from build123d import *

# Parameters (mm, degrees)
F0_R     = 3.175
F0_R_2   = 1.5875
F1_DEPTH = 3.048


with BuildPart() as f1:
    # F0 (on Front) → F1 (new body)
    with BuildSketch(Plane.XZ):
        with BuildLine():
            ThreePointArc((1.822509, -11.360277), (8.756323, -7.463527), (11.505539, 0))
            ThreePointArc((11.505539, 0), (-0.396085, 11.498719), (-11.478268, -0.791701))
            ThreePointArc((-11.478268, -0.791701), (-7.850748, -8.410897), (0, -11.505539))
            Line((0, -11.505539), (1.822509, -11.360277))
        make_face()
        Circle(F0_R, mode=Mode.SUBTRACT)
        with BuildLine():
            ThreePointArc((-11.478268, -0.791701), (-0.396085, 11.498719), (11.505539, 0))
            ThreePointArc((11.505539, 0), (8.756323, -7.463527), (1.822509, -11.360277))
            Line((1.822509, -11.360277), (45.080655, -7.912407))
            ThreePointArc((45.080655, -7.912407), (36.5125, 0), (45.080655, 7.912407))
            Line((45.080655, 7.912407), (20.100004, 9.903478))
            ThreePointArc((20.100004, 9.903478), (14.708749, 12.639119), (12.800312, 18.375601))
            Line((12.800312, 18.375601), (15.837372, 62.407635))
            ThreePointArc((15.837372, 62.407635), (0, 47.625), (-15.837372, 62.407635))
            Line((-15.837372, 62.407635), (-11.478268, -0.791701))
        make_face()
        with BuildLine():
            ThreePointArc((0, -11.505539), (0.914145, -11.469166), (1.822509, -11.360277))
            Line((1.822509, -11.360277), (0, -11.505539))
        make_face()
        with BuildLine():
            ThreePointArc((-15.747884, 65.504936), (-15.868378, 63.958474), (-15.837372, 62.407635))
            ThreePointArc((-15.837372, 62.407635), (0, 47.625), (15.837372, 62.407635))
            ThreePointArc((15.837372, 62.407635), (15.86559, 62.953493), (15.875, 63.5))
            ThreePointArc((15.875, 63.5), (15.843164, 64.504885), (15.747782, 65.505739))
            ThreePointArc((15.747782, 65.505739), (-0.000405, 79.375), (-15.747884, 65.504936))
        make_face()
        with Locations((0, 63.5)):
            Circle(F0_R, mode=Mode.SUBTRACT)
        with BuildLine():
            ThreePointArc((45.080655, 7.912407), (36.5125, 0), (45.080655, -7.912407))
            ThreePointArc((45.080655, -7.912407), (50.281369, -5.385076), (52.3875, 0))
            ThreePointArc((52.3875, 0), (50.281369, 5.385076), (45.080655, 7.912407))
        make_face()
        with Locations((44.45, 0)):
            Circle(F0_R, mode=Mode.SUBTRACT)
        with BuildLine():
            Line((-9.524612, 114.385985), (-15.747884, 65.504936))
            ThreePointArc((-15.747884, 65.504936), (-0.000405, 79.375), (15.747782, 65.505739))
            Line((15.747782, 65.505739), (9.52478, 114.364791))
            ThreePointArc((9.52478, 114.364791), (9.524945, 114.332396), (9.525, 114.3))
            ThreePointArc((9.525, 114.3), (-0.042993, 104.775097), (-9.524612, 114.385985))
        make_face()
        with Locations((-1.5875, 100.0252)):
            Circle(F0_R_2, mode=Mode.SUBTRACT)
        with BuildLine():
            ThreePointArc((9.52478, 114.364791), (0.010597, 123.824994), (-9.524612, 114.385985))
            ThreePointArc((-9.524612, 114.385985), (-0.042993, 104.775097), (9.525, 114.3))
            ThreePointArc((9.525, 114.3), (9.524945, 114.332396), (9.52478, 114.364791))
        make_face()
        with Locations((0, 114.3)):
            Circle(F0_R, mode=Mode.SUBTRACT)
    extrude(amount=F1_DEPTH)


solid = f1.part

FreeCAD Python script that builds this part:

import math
import FreeCAD as App
import Part
import Sketcher
Q = App.Units.Quantity

doc = App.newDocument("Part")
body = doc.addObject("PartDesign::Body", "Body")

# Sketch on XZ plane
sketch1 = doc.addObject("Sketcher::SketchObject", "Sketch")
body.addObject(sketch1)
sketch1.AttachmentSupport = (doc.XZ_Plane, [""])
sketch1.MapMode = "FlatFace"
sketch1.addGeometry(Part.LineSegment(App.Vector(1.822509, -11.360277, 0), App.Vector(45.080655, -7.912407, 0)), False)
sketch1.addGeometry(Part.ArcOfCircle(Part.Circle(App.Vector(44.45, 0, 0), App.Vector(0, 0, 1), 7.9375), math.radians(-85.442897), math.radians(0.000001)), False)
sketch1.addGeometry(Part.ArcOfCircle(Part.Circle(App.Vector(44.45, 0, 0), App.Vector(0, 0, 1), 7.9375), math.radians(-0.000001), math.radians(85.442897)), False)
sketch1.addGeometry(Part.LineSegment(App.Vector(45.080655, 7.912407, 0), App.Vector(20.100004, 9.903478, 0)), False)
sketch1.addGeometry(Part.ArcOfCircle(Part.Circle(App.Vector(20.731666, 17.828543, 0), App.Vector(0, 0, 1), 7.950198), math.radians(176.054323), math.radians(265.442911)), False)
sketch1.addGeometry(Part.LineSegment(App.Vector(12.800312, 18.375601, 0), App.Vector(15.837372, 62.407635, 0)), False)
sketch1.addGeometry(Part.ArcOfCircle(Part.Circle(App.Vector(-0.000166, 63.500011, 0), App.Vector(0, 0, 1), 15.875166), math.radians(-3.945662), math.radians(-0.00004)), False)
sketch1.addGeometry(Part.ArcOfCircle(Part.Circle(App.Vector(0.000211, 63.500014, 0), App.Vector(0, 0, 1), 15.874789), math.radians(-0.00005), math.radians(7.258525)), False)
sketch1.addGeometry(Part.LineSegment(App.Vector(15.747782, 65.505739, 0), App.Vector(9.52478, 114.364791, 0)), False)
sketch1.addGeometry(Part.ArcOfCircle(Part.Circle(App.Vector(0, 114.3, 0), App.Vector(0, 0, 1), 9.525), math.radians(0.389743), math.radians(179.482765)), False)
sketch1.addGeometry(Part.LineSegment(App.Vector(-9.524612, 114.385985, 0), App.Vector(-15.747884, 65.504936, 0)), False)
sketch1.addGeometry(Part.ArcOfCircle(Part.Circle(App.Vector(-0.000018, 63.500001, 0), App.Vector(0, 0, 1), 15.874982), math.radians(172.74444), math.radians(183.945673)), False)
sketch1.addGeometry(Part.LineSegment(App.Vector(-15.837372, 62.407635, 0), App.Vector(-11.478268, -0.791701, 0)), False)
sketch1.addGeometry(Part.ArcOfCircle(Part.Circle(App.Vector(-0.000001, -0.000001, 0), App.Vector(0, 0, 1), 11.505538), math.radians(-176.054338), math.radians(-89.999997)), False)
sketch1.addGeometry(Part.ArcOfCircle(Part.Circle(App.Vector(0.000001, 0.000004, 0), App.Vector(0, 0, 1), 11.505543), math.radians(-90.000005), math.radians(-80.88581)), False)
sketch1.addGeometry(Part.Circle(App.Vector(0, 0, 0), App.Vector(0, 0, 1), 3.175), False)
sketch1.addGeometry(Part.Circle(App.Vector(44.45, 0, 0), App.Vector(0, 0, 1), 3.175), False)
sketch1.addGeometry(Part.Circle(App.Vector(0, 63.5, 0), App.Vector(0, 0, 1), 3.175), False)
sketch1.addGeometry(Part.Circle(App.Vector(-1.5875, 100.0252, 0), App.Vector(0, 0, 1), 1.5875), False)
sketch1.addGeometry(Part.Circle(App.Vector(0, 114.3, 0), App.Vector(0, 0, 1), 3.175), False)
sketch1.addConstraint(Sketcher.Constraint("Coincident", 0, 2, 1, 1))
sketch1.addConstraint(Sketcher.Constraint("Coincident", 1, 2, 2, 1))
sketch1.addConstraint(Sketcher.Constraint("Coincident", 2, 2, 3, 1))
sketch1.addConstraint(Sketcher.Constraint("Coincident", 3, 2, 4, 2))
sketch1.addConstraint(Sketcher.Constraint("Coincident", 4, 1, 5, 1))
sketch1.addConstraint(Sketcher.Constraint("Coincident", 5, 2, 6, 1))
sketch1.addConstraint(Sketcher.Constraint("Coincident", 6, 2, 7, 1))
sketch1.addConstraint(Sketcher.Constraint("Coincident", 7, 2, 8, 1))
sketch1.addConstraint(Sketcher.Constraint("Coincident", 8, 2, 9, 1))
sketch1.addConstraint(Sketcher.Constraint("Coincident", 9, 2, 10, 1))
sketch1.addConstraint(Sketcher.Constraint("Coincident", 10, 2, 11, 1))
sketch1.addConstraint(Sketcher.Constraint("Coincident", 11, 2, 12, 1))
sketch1.addConstraint(Sketcher.Constraint("Coincident", 12, 2, 13, 1))
sketch1.addConstraint(Sketcher.Constraint("Coincident", 13, 2, 14, 1))
sketch1.addConstraint(Sketcher.Constraint("Coincident", 14, 2, 0, 1))
sketch1.addConstraint(Sketcher.Constraint("Coincident", 13, 3, -1, 1))
sketch1.addConstraint(Sketcher.Constraint("Coincident", 14, 3, -1, 1))
sketch1.addConstraint(Sketcher.Constraint("Coincident", 15, 3, -1, 1))
sketch1.addConstraint(Sketcher.Constraint("Coincident", 2, 3, 1, 3))
sketch1.addConstraint(Sketcher.Constraint("Coincident", 16, 3, 1, 3))
sketch1.addConstraint(Sketcher.Constraint("Coincident", 19, 3, 9, 3))
sketch1.addConstraint(Sketcher.Constraint("PointOnObject", 1, 3, -1))
sketch1.addConstraint(Sketcher.Constraint("PointOnObject", 9, 3, -2))
sketch1.addConstraint(Sketcher.Constraint("PointOnObject", 17, 3, -2))
sketch1.addConstraint(Sketcher.Constraint("PointOnObject", 1, 2, -1))
sketch1.addConstraint(Sketcher.Constraint("PointOnObject", 13, 2, -2))
sketch1.addConstraint(Sketcher.Constraint("Diameter", 15, Q("0.25 in")))
sketch1.addConstraint(Sketcher.Constraint("Diameter", 16, Q("0.25 in")))
sketch1.addConstraint(Sketcher.Constraint("Diameter", 17, Q("0.25 in")))
sketch1.addConstraint(Sketcher.Constraint("Diameter", 19, Q("0.25 in")))
sketch1.addConstraint(Sketcher.Constraint("Diameter", 18, Q("0.125 in")))
sketch1.addConstraint(Sketcher.Constraint("Radius", 1, Q("0.3125 in")))
sketch1.addConstraint(Sketcher.Constraint("Radius", 4, Q("0.3129999 in")))
sketch1.addConstraint(Sketcher.Constraint("Radius", 9, Q("0.375 in")))
sketch1.addConstraint(Sketcher.Constraint("DistanceY", 11, 3, 9, 3, Q("1.9999999 in")))
sketch1.addConstraint(Sketcher.Constraint("DistanceY", 17, 3, 9, 3, Q("2 in")))
sketch1.addConstraint(Sketcher.Constraint("DistanceY", -1, 1, 9, 3, Q("4.5 in")))
sketch1.addConstraint(Sketcher.Constraint("DistanceY", -1, 1, 6, 2, Q("2.5 in")))
sketch1.addConstraint(Sketcher.Constraint("DistanceX", -1, 1, 1, 3, Q("1.75 in")))
sketch1.addConstraint(Sketcher.Constraint("DistanceX", 18, 3, -1, 1, Q("0.0625 in")))
sketch1.addConstraint(Sketcher.Constraint("DistanceY", -1, 1, 18, 3, Q("3.938 in")))
sketch1.addConstraint(Sketcher.Constraint("DistanceX", -1, 1, 6, 2, Q("0.625 in")))
sketch1.addConstraint(Sketcher.Constraint("Radius", 7, 15.874789))
sketch1.addConstraint(Sketcher.Constraint("Radius", 11, 15.874982))
sketch1.addConstraint(Sketcher.Constraint("Radius", 13, 11.505538))
sketch1.addConstraint(Sketcher.Constraint("DistanceX", 8, 2, 7, 2, Q("0.2450001 in")))
sketch1.addConstraint(Sketcher.Constraint("Radius", 6, 15.875166))
sketch1.addConstraint(Sketcher.Constraint("DistanceY", -1, 1, 4, 1, 18.375601))
sketch1.addConstraint(Sketcher.Constraint("DistanceY", 12, 2, -1, 1, 0.791701))
sketch1.addConstraint(Sketcher.Constraint("DistanceX", 11, 3, 7, 2, 15.7478))
sketch1.addConstraint(Sketcher.Constraint("DistanceY", 11, 2, 10, 2, 3.097301))
sketch1.addConstraint(Sketcher.Constraint("Distance", 5, 44.136649))
sketch1.addConstraint(Sketcher.Constraint("Distance", 8, 49.253758))
sketch1.addConstraint(Sketcher.Constraint("Distance", 12, 63.34949))
sketch1.addConstraint(Sketcher.Constraint("DistanceY", -1, 1, 6, 3, 63.500011))
sketch1.addConstraint(Sketcher.Constraint("DistanceX", -1, 1, 4, 1, 12.800312))
sketch1.addConstraint(Sketcher.Constraint("DistanceY", -1, 1, 7, 2, 65.505739))
sketch1.addConstraint(Sketcher.Constraint("DistanceX", 9, 2, -1, 1, 9.524612))
sketch1.addConstraint(Sketcher.Constraint("DistanceX", -1, 1, 14, 2, 1.822509))
sketch1.addConstraint(Sketcher.Constraint("DistanceY", 4, 3, 6, 3, 45.671468))
sketch1.addConstraint(Sketcher.Constraint("DistanceX", 4, 3, 0, 2, 24.348989))
sketch1.addConstraint(Sketcher.Constraint("DistanceY", 13, 3, 3, 2, 9.903479))
sketch1.addConstraint(Sketcher.Constraint("DistanceX", 3, 2, 2, 2, 24.980651))
pad1 = doc.addObject("PartDesign::Pad", "Pad")
body.addObject(pad1)
pad1.Profile = sketch1
pad1.Length = Q("0.12 in")

doc.recompute()
